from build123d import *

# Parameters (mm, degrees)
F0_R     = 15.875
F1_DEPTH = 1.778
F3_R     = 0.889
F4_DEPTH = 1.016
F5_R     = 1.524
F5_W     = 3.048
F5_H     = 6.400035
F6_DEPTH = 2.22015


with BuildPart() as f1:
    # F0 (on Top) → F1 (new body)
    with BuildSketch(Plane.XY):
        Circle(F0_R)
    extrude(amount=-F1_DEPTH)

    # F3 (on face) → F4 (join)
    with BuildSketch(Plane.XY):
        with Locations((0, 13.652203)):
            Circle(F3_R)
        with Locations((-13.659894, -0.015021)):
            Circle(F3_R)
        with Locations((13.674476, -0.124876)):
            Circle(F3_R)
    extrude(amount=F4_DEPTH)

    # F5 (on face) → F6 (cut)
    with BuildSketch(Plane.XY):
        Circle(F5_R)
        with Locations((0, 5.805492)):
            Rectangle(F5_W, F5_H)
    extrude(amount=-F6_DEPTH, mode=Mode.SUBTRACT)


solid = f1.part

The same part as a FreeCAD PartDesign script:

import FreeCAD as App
import Part
import Sketcher
from FreeCAD import Vector
Q = App.Units.Quantity


def add_polygon(sketch, points):
    """Adds a closed chain of lines whose ends are joined by coincident constraints."""
    first, n = sketch.GeometryCount, len(points)
    for a, b in zip(points, points[1:] + points[:1]):
        sketch.addGeometry(Part.LineSegment(App.Vector(*a, 0), App.Vector(*b, 0)), False)
    for i in range(n):
        sketch.addConstraint(Sketcher.Constraint("Coincident", first + i, 2, first + (i + 1) % n, 1))

doc = App.newDocument("Part")
body = doc.addObject("PartDesign::Body", "Body")

# Sketch on XY plane
sketch1 = body.newObject("Sketcher::SketchObject", "Sketch")
sketch1.AttachmentSupport = (doc.getObject("XY_Plane"), [""])
sketch1.MapMode = "FlatFace"
sketch1.addGeometry(Part.Circle(Vector(0, 0, 0), Vector(0, 0, 1), 15.875), False)
sketch1.addConstraint([
    Sketcher.Constraint("Coincident", 0, 3, -1, 1),
    Sketcher.Constraint("Diameter", 0, Q("1.25 in")),
])
pad1 = body.newObject("PartDesign::Pad", "Pad")
pad1.Profile = sketch1
pad1.Length = Q("0.07 in")
pad1.Reversed = True

# Sketch on XY plane
sketch2 = body.newObject("Sketcher::SketchObject", "Sketch001")
sketch2.AttachmentSupport = (doc.getObject("XY_Plane"), [""])
sketch2.MapMode = "FlatFace"
sketch2.addGeometry([
    Part.Circle(Vector(0, 13.652203, 0), Vector(0, 0, 1), 0.889),
    Part.Circle(Vector(-13.659894, -0.015021, 0), Vector(0, 0, 1), 0.889),
    Part.Circle(Vector(13.674476, -0.124876, 0), Vector(0, 0, 1), 0.889),
], False)
sketch2.addConstraint([
    Sketcher.Constraint("Equal", 0, 1),
    Sketcher.Constraint("Equal", 1, 2),
    Sketcher.Constraint("PointOnObject", 0, 3, -2),
    Sketcher.Constraint("Diameter", 0, Q("0.07 in")),
    Sketcher.Constraint("DistanceY", 1, 3, -1, 1, 0.015021),
    Sketcher.Constraint("DistanceY", 2, 3, 0, 3, 13.777079),
    Sketcher.Constraint("DistanceX", 1, 3, 2, 3, 27.33437),
    Sketcher.Constraint("DistanceY", -1, 1, 0, 3, 13.652203),
    Sketcher.Constraint("DistanceX", 1, 3, -1, 1, 13.659894),
])
pad2 = body.newObject("PartDesign::Pad", "Pad001")
pad2.Profile = sketch2
pad2.Length = Q("0.04 in")

# Sketch on XY plane
sketch3 = body.newObject("Sketcher::SketchObject", "Sketch002")
sketch3.AttachmentSupport = (doc.getObject("XY_Plane"), [""])
sketch3.MapMode = "FlatFace"
sketch3.addGeometry(Part.Circle(Vector(0, 0, 0), Vector(0, 0, 1), 1.524), False)  # 0
add_polygon(sketch3, [(-1.524, 9.00551), (-1.524, 2.605475), (1.524, 2.605475), (1.524, 9.00551)])  # lines 1-4
sketch3.addConstraint([
    Sketcher.Constraint("Vertical", 1),
    Sketcher.Constraint("Horizontal", 2),
    Sketcher.Constraint("Vertical", 3),
    Sketcher.Constraint("Horizontal", 4),
    Sketcher.Constraint("Coincident", 0, 3, -1, 1),
    Sketcher.Constraint("Diameter", 0, Q("0.12 in")),
    Sketcher.Constraint("DistanceX", 2, 1, 2, 2, Q("0.12 in")),
    Sketcher.Constraint("DistanceX", 1, 2, -1, 1, Q("0.06 in")),
    Sketcher.Constraint("DistanceY", 1, 2, 1, 1, 6.400035),
    Sketcher.Constraint("DistanceY", -1, 1, 3, 2, 9.00551),
])
pocket1 = body.newObject("PartDesign::Pocket", "Pocket")
pocket1.Profile = sketch3
pocket1.Length = 2.22015

doc.recompute()
